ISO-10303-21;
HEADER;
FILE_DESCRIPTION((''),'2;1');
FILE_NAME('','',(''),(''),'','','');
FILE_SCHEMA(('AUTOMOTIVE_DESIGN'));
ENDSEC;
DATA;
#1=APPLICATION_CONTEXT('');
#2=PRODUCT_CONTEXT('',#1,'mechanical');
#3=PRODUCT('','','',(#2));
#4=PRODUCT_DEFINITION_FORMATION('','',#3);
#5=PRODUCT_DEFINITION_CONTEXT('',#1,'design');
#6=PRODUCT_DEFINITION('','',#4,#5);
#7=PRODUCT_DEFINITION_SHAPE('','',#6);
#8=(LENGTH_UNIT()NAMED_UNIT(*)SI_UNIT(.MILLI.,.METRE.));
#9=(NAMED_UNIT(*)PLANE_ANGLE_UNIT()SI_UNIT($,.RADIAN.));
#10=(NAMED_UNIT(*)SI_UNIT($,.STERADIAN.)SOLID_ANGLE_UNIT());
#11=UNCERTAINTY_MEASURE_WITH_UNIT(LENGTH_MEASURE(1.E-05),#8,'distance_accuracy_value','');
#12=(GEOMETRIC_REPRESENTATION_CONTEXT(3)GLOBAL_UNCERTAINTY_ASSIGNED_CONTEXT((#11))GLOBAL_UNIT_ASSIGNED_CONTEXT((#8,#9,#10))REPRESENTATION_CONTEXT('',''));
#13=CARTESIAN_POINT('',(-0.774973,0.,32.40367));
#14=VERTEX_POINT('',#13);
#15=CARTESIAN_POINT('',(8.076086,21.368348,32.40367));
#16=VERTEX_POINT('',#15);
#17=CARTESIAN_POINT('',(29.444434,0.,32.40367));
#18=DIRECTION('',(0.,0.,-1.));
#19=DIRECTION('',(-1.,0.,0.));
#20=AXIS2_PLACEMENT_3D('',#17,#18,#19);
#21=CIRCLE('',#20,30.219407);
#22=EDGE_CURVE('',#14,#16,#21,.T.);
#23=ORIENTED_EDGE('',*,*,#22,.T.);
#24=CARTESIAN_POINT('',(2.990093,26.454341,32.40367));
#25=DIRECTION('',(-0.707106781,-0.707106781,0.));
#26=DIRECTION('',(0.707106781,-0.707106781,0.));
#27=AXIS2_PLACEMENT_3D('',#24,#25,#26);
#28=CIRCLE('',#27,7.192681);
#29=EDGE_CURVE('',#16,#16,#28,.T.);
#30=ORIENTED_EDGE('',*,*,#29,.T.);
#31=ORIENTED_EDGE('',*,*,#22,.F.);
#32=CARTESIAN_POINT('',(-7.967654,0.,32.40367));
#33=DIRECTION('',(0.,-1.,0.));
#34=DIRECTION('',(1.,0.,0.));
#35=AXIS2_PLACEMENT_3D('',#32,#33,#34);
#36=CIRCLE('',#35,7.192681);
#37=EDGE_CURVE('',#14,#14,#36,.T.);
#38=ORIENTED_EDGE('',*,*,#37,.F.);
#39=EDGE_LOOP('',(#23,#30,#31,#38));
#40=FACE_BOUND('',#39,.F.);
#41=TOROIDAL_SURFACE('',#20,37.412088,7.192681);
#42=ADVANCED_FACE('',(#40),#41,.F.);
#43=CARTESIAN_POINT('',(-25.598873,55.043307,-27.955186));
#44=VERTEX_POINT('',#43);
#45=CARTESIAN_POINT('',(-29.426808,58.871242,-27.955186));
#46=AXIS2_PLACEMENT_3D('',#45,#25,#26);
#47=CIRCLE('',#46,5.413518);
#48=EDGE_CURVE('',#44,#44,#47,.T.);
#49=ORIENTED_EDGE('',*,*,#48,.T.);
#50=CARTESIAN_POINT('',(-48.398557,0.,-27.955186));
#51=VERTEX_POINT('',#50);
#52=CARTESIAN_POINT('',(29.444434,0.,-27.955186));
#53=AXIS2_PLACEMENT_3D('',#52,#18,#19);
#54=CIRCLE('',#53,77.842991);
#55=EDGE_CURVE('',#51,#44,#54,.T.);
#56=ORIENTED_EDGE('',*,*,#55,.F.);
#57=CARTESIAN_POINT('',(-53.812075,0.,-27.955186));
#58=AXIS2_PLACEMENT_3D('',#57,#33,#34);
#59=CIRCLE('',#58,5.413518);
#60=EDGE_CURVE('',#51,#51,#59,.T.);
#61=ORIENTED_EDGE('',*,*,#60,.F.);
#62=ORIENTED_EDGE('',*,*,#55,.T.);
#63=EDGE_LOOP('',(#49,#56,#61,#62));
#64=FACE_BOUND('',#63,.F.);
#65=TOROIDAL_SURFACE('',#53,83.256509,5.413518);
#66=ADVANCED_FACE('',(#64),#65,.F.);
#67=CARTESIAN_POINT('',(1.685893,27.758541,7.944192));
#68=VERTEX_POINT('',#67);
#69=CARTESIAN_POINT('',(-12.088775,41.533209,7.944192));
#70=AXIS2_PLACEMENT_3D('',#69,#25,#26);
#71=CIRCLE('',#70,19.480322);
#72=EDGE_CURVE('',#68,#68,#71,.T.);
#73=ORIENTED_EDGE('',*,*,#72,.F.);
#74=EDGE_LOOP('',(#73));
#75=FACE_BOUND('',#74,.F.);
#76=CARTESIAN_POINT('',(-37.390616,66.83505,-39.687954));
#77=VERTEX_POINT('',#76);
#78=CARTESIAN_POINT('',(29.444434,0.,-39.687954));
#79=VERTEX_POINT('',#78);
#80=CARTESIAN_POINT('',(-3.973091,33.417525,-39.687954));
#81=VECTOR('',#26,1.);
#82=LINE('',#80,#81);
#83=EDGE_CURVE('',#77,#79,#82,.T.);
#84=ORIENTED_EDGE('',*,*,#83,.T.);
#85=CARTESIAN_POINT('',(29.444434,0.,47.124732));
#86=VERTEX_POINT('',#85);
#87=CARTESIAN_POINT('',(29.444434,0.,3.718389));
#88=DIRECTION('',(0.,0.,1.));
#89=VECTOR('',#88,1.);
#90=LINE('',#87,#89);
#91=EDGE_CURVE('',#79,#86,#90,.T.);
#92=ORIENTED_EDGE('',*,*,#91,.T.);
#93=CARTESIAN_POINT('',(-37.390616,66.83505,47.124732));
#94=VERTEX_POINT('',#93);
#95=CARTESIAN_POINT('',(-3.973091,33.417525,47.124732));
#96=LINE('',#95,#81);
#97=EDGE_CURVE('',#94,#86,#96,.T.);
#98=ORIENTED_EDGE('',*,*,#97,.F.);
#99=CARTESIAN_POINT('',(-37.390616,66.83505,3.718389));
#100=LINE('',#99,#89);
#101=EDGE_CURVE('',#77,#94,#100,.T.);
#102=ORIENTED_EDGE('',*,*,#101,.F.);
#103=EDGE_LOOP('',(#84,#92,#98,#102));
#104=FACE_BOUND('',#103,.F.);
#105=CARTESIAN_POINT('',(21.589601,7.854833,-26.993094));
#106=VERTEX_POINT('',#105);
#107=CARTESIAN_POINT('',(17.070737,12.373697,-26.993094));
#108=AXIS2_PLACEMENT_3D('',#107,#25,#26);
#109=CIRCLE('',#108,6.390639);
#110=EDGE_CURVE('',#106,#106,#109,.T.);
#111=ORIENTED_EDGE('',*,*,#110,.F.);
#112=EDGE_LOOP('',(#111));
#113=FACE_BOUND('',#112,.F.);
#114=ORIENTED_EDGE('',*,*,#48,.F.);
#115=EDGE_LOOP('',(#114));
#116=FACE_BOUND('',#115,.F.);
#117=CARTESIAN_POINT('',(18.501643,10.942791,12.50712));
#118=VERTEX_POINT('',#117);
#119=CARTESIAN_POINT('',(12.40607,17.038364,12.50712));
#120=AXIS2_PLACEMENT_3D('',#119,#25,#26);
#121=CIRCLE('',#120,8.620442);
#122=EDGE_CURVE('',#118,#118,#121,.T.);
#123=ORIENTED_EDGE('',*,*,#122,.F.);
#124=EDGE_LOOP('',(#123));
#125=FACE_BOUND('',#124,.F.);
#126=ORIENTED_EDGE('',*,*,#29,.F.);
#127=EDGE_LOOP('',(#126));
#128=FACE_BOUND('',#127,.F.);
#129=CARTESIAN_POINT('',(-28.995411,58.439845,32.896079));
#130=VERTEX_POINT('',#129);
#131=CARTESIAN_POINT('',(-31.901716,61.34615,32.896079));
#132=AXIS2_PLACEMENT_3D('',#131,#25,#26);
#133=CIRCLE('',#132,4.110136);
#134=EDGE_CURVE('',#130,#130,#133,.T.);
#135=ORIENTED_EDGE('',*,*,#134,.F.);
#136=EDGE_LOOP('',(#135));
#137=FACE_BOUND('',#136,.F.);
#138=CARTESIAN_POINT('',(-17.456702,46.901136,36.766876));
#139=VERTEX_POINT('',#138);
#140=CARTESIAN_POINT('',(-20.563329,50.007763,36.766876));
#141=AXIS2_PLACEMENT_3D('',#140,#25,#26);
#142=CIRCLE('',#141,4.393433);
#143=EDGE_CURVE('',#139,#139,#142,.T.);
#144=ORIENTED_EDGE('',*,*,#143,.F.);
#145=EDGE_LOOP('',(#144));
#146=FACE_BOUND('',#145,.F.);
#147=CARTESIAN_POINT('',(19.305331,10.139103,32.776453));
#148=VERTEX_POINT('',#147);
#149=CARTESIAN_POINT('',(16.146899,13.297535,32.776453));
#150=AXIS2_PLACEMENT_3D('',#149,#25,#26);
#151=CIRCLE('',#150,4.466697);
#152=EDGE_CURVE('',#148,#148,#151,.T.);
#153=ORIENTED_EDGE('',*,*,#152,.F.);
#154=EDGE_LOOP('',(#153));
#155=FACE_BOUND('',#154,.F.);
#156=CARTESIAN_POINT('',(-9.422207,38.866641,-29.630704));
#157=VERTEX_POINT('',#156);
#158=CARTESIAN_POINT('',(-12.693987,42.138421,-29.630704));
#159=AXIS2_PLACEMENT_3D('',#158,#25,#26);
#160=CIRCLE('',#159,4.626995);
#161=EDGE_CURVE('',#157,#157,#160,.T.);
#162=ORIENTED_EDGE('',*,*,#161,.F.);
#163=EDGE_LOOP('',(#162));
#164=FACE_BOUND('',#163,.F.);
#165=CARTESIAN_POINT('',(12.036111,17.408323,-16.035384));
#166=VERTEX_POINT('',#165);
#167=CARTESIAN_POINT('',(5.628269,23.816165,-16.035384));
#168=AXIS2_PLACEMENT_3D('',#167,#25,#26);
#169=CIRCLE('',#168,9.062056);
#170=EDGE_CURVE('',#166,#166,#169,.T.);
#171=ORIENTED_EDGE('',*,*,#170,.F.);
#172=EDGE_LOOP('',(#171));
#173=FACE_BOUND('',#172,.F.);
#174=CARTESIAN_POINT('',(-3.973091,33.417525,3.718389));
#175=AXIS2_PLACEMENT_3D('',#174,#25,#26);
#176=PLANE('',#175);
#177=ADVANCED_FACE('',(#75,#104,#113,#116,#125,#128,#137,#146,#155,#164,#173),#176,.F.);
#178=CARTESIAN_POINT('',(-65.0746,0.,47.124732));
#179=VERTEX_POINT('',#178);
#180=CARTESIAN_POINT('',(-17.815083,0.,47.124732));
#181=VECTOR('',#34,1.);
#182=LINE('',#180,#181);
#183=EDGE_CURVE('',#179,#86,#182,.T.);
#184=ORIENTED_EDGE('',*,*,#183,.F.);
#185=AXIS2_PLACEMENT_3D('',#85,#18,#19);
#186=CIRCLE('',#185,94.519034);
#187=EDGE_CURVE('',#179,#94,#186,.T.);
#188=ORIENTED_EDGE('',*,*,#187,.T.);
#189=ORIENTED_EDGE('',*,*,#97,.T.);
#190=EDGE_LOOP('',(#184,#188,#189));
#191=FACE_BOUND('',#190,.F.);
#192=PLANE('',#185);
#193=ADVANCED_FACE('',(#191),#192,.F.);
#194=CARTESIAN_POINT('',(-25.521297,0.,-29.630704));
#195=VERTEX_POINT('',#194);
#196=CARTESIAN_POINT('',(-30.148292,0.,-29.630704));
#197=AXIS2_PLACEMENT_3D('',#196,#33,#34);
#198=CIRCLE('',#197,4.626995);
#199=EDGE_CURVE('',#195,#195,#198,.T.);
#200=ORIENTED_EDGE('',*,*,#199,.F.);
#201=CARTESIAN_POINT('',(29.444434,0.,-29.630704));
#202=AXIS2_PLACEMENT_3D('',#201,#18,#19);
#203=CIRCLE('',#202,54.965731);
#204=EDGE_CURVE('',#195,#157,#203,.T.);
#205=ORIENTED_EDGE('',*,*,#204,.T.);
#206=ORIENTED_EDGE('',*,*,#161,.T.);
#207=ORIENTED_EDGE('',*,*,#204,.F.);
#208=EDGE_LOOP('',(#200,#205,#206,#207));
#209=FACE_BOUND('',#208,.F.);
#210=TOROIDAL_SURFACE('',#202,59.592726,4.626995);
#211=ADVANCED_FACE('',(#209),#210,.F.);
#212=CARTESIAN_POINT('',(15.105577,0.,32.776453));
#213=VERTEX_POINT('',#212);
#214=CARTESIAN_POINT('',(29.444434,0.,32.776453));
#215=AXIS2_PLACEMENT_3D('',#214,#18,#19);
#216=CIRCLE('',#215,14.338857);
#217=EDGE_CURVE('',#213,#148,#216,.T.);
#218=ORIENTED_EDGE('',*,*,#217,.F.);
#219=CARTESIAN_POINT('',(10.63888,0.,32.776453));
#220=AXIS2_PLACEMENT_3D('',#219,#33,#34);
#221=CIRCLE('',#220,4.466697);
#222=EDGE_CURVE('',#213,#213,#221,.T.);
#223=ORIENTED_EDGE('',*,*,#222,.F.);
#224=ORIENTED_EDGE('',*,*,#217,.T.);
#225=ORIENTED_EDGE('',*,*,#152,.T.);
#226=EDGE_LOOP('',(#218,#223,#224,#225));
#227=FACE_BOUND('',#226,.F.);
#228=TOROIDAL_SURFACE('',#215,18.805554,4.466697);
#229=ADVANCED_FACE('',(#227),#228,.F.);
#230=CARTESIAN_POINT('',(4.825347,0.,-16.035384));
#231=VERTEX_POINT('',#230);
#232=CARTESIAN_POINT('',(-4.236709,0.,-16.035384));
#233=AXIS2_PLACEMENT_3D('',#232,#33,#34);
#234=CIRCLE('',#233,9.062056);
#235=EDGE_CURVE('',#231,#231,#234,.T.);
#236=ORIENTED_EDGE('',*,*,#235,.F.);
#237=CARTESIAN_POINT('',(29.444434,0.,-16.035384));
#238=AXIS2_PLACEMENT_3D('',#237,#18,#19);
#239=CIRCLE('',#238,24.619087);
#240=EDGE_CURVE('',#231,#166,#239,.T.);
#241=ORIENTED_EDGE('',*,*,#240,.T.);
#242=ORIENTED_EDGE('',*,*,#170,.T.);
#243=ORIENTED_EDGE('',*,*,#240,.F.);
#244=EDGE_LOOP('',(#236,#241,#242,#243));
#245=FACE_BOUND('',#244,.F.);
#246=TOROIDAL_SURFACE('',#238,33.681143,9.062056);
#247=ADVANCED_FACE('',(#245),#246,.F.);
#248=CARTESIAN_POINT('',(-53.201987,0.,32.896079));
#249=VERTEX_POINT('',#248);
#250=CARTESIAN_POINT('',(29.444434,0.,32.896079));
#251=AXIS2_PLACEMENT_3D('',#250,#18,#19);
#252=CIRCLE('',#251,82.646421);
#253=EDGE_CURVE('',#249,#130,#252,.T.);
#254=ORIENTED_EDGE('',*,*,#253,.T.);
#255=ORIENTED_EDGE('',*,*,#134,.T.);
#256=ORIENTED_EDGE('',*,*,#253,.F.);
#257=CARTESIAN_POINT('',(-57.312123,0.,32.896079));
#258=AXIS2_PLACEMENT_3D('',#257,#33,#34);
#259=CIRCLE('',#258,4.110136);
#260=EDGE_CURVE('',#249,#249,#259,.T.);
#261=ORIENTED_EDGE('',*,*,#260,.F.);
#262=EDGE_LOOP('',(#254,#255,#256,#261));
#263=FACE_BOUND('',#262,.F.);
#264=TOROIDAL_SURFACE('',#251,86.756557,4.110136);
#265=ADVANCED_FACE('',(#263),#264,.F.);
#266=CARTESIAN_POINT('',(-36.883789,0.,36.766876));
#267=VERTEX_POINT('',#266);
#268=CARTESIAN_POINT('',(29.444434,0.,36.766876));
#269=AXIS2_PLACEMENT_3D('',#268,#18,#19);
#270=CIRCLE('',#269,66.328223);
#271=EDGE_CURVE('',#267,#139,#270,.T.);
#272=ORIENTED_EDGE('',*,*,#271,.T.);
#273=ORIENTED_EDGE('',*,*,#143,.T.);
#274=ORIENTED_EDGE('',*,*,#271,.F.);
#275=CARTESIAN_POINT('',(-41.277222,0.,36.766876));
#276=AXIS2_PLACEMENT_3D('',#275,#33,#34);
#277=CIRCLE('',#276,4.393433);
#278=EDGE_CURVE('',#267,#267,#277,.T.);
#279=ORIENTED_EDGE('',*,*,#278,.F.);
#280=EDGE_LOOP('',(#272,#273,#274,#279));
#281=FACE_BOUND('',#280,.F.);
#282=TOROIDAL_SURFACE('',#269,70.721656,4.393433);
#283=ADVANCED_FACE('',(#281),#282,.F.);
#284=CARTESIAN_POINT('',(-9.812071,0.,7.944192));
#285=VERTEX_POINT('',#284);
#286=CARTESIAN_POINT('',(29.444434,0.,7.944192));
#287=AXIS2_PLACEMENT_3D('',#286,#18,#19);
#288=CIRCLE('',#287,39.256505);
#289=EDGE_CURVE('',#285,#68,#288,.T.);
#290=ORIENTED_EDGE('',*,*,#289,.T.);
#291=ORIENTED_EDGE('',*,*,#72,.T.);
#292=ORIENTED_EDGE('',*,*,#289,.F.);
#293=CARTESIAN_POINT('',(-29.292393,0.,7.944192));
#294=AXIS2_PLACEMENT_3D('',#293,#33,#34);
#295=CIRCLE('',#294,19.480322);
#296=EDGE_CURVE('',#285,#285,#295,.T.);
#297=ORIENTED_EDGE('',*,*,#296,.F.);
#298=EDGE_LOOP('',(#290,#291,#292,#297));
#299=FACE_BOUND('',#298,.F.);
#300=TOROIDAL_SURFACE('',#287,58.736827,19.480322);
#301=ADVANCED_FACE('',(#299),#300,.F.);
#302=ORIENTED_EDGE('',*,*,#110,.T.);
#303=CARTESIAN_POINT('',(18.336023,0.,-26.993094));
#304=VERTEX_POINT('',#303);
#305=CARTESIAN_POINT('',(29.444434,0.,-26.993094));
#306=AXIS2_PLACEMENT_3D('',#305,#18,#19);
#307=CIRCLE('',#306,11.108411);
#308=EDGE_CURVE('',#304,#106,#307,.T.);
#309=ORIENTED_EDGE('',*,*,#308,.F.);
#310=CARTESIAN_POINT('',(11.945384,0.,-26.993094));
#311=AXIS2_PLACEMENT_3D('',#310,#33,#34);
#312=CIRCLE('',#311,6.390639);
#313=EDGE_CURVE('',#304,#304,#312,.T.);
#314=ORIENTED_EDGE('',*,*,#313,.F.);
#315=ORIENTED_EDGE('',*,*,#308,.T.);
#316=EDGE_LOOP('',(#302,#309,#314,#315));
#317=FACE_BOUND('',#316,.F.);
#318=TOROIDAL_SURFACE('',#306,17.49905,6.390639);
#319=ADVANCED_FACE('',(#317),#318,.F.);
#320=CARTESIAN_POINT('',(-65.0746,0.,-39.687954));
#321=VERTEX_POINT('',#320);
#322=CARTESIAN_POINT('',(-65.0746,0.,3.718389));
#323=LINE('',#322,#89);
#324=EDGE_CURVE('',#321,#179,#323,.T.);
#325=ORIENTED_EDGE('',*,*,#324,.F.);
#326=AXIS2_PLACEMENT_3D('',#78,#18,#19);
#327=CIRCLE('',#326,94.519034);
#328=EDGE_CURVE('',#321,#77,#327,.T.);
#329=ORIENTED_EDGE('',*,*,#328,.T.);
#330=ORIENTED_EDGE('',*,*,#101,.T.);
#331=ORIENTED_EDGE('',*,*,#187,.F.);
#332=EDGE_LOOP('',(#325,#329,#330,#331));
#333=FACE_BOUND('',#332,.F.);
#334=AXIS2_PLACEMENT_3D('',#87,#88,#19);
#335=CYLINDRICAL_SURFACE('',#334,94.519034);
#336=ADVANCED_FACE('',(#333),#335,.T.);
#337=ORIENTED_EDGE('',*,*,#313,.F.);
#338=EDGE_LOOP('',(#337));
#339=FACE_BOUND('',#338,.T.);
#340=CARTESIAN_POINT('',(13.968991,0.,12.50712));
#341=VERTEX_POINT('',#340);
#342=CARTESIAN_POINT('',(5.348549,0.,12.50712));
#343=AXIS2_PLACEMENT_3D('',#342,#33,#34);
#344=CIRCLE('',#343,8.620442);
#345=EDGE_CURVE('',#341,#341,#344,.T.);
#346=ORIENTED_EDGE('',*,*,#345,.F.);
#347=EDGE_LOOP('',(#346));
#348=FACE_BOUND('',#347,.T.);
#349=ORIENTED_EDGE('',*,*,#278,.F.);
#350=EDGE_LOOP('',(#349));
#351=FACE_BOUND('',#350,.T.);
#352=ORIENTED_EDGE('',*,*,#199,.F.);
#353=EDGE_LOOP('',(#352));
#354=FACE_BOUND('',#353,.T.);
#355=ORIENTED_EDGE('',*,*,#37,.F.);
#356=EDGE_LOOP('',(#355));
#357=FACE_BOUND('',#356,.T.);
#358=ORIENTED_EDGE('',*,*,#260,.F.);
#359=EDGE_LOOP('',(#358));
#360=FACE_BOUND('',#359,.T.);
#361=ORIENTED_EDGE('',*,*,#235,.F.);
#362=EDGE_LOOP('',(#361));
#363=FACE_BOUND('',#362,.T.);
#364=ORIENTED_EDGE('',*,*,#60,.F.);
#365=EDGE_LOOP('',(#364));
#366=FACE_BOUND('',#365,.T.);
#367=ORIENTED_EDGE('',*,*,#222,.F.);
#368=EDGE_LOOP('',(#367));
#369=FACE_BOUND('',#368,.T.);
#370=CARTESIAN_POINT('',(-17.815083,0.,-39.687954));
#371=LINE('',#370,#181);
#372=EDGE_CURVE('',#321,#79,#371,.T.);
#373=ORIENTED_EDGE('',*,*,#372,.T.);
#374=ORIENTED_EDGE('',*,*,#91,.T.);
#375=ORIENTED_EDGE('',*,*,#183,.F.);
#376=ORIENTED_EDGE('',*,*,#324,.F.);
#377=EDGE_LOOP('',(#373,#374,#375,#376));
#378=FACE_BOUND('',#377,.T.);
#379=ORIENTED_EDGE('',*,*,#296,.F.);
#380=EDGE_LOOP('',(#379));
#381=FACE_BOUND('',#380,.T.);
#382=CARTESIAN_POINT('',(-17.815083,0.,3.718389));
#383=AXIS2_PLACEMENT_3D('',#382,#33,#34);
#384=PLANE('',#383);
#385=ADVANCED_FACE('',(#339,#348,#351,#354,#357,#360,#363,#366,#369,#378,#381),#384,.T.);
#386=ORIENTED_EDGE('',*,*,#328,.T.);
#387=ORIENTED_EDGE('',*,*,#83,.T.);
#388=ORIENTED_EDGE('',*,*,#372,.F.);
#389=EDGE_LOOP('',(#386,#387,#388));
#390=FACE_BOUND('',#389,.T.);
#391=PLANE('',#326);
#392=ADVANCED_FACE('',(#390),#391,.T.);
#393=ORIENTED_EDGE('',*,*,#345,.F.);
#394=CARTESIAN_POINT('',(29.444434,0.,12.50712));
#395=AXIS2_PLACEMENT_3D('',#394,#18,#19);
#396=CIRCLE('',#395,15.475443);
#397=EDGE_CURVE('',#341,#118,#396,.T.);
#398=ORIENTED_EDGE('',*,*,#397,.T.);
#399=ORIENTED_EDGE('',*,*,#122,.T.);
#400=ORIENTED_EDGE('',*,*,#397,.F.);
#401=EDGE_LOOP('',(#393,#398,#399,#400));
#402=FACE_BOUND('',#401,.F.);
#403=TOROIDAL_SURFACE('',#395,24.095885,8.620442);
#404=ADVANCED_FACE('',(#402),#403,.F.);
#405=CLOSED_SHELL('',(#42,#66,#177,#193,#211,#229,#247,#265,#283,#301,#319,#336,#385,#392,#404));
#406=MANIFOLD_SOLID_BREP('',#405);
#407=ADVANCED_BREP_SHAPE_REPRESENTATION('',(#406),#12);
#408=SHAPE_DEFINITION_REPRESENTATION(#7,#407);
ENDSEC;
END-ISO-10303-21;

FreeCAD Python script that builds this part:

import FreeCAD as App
import Part
import Sketcher

V = App.Vector

doc = App.newDocument("Part")
params = doc.addObject("Spreadsheet::Sheet", "Params")
for row, (alias, value) in enumerate([
    ("revolution_angle", "45 deg"),
], start=1):
    params.set(f"A{row}", alias)
    params.set(f"B{row}", "=" + value)
    params.setAlias(f"B{row}", alias)

body = doc.addObject("PartDesign::Body", "Body")

# Sketch on XZ plane
sketch1 = body.newObject("Sketcher::SketchObject", "Sketch")
sketch1.AttachmentSupport = (doc.getObject("XZ_Plane"), [""])
sketch1.MapMode = "FlatFace"
sketch1.addGeometry(Part.LineSegment(V(-65.1, 47.1, 0), V(-65.1, -39.7, 0)), False)
sketch1.addGeometry(Part.LineSegment(V(-65.1, -39.7, 0), V(29.4, -39.7, 0)), False)
sketch1.addGeometry(Part.LineSegment(V(29.4, -39.7, 0), V(29.4, 47.1, 0)), False)
sketch1.addGeometry(Part.LineSegment(V(29.4, 47.1, 0), V(-65.1, 47.1, 0)), False)
sketch1.addGeometry(Part.Circle(V(-53.8, -28, 0), V(0, 0, 1), 5.4), False)
sketch1.addGeometry(Part.Circle(V(-30.1, -29.6, 0), V(0, 0, 1), 4.6), False)
sketch1.addGeometry(Part.Circle(V(-4.2, -16, 0), V(0, 0, 1), 9.1), False)
sketch1.addGeometry(Part.Circle(V(11.9, -27, 0), V(0, 0, 1), 6.4), False)
sketch1.addGeometry(Part.Circle(V(-29.3, 7.9, 0), V(0, 0, 1), 19.5), False)
sketch1.addGeometry(Part.Circle(V(-57.3, 32.9, 0), V(0, 0, 1), 4.1), False)
sketch1.addGeometry(Part.Circle(V(-41.3, 36.8, 0), V(0, 0, 1), 4.4), False)
sketch1.addGeometry(Part.Circle(V(5.3, 12.5, 0), V(0, 0, 1), 8.6), False)
sketch1.addGeometry(Part.Circle(V(-8, 32.4, 0), V(0, 0, 1), 7.2), False)
sketch1.addGeometry(Part.Circle(V(10.6, 32.8, 0), V(0, 0, 1), 4.5), False)
sketch1.addGeometry(Part.LineSegment(V(29.4, 47.1, 0), V(29.4, -39.7, 0)), True)  # axis
sketch1.addConstraint(Sketcher.Constraint("Coincident", 0, 2, 1, 1))
sketch1.addConstraint(Sketcher.Constraint("Coincident", 1, 2, 2, 1))
sketch1.addConstraint(Sketcher.Constraint("Coincident", 2, 2, 3, 1))
sketch1.addConstraint(Sketcher.Constraint("Coincident", 3, 2, 0, 1))
sketch1.addConstraint(Sketcher.Constraint("Vertical", 0))
sketch1.addConstraint(Sketcher.Constraint("Horizontal", 1))
sketch1.addConstraint(Sketcher.Constraint("Vertical", 2))
sketch1.addConstraint(Sketcher.Constraint("Horizontal", 3))
sketch1.addConstraint(Sketcher.Constraint("Vertical", 14))
sketch1.addConstraint(Sketcher.Constraint("Coincident", 14, 1, 2, 2))
sketch1.addConstraint(Sketcher.Constraint("Horizontal", 0, 2, 14, 2))
sketch1.addConstraint(Sketcher.Constraint("Diameter", 5, 9.25399))
sketch1.addConstraint(Sketcher.Constraint("Diameter", 6, 18.124112))
sketch1.addConstraint(Sketcher.Constraint("Diameter", 4, 10.827036))
sketch1.addConstraint(Sketcher.Constraint("Diameter", 7, 12.781278))
sketch1.addConstraint(Sketcher.Constraint("Diameter", 8, 38.960644))
sketch1.addConstraint(Sketcher.Constraint("Diameter", 9, 8.220272))
sketch1.addConstraint(Sketcher.Constraint("Diameter", 10, 8.786866))
sketch1.addConstraint(Sketcher.Constraint("Diameter", 11, 17.240884))
sketch1.addConstraint(Sketcher.Constraint("Diameter", 12, 14.385362))
sketch1.addConstraint(Sketcher.Constraint("Diameter", 13, 8.933394))
sketch1.addConstraint(Sketcher.Constraint("DistanceX", 0, 2, -1, 1, 65.0746))
sketch1.addConstraint(Sketcher.Constraint("DistanceX", 5, 3, 8, 3, 0.855899))
sketch1.addConstraint(Sketcher.Constraint("DistanceX", 9, 3, 10, 3, 16.034901))
sketch1.addConstraint(Sketcher.Constraint("DistanceX", 1, 1, 1, 2, 94.519034))
sketch1.addConstraint(Sketcher.Constraint("DistanceY", 0, 2, 0, 1, 86.812686))
sketch1.addConstraint(Sketcher.Constraint("DistanceX", 6, 3, -1, 1, 4.236709))
sketch1.addConstraint(Sketcher.Constraint("DistanceY", -1, 1, 9, 3, 32.896079))
sketch1.addConstraint(Sketcher.Constraint("DistanceX", -1, 1, 11, 3, 5.348549))
sketch1.addConstraint(Sketcher.Constraint("DistanceY", -1, 1, 11, 3, 12.50712))
sketch1.addConstraint(Sketcher.Constraint("DistanceY", -1, 1, 12, 3, 32.40367))
sketch1.addConstraint(Sketcher.Constraint("DistanceX", -1, 1, 13, 3, 10.63888))
sketch1.addConstraint(Sketcher.Constraint("DistanceY", 5, 3, 4, 3, 1.675518))
sketch1.addConstraint(Sketcher.Constraint("DistanceY", 5, 3, 6, 3, 13.59532))
sketch1.addConstraint(Sketcher.Constraint("DistanceY", 7, 3, 6, 3, 10.95771))
sketch1.addConstraint(Sketcher.Constraint("DistanceX", 4, 3, 7, 3, 65.757459))
sketch1.addConstraint(Sketcher.Constraint("DistanceX", 4, 3, 8, 3, 24.519682))
sketch1.addConstraint(Sketcher.Constraint("DistanceX", 9, 3, 8, 3, 28.01973))
sketch1.addConstraint(Sketcher.Constraint("DistanceY", 6, 3, 10, 3, 52.80226))
sketch1.addConstraint(Sketcher.Constraint("DistanceY", 8, 3, 11, 3, 4.562928))
sketch1.addConstraint(Sketcher.Constraint("DistanceX", 10, 3, 11, 3, 46.625771))
sketch1.addConstraint(Sketcher.Constraint("DistanceX", 8, 3, 12, 3, 21.324739))
sketch1.addConstraint(Sketcher.Constraint("DistanceY", 8, 3, 13, 3, 24.832261))
sketch1.addConstraint(Sketcher.Constraint("DistanceY", 0, 2, 5, 3, 10.05725))
sketch1.addConstraint(Sketcher.Constraint("DistanceY", 13, 3, 2, 2, 14.348279))
revolution = body.newObject("PartDesign::Revolution", "Revolution")
revolution.Profile = sketch1
revolution.ReferenceAxis = (sketch1, ["Axis0"])
revolution.setExpression("Angle", "Params.revolution_angle")

doc.recompute()
